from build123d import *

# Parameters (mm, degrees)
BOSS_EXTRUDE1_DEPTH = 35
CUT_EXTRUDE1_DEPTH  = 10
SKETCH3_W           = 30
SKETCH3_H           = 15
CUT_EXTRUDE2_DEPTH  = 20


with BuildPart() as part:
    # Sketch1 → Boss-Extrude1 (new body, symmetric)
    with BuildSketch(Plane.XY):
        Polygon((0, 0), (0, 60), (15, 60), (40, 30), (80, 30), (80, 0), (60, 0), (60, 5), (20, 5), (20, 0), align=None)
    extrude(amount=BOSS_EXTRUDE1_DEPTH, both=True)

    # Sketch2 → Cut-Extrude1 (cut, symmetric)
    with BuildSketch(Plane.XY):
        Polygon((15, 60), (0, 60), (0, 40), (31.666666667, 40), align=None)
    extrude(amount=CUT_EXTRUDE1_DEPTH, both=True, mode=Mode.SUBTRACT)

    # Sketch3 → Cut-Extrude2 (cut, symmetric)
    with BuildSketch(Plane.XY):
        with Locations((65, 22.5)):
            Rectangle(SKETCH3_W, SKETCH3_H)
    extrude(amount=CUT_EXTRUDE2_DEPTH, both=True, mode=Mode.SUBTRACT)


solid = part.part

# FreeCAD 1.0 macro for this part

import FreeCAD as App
import Part
import Sketcher
Q = App.Units.Quantity


def add_polygon(sketch, points):
    """Adds a closed chain of lines whose ends are joined by coincident constraints."""
    first, n = sketch.GeometryCount, len(points)
    for a, b in zip(points, points[1:] + points[:1]):
        sketch.addGeometry(Part.LineSegment(App.Vector(*a, 0), App.Vector(*b, 0)), False)
    for i in range(n):
        sketch.addConstraint(Sketcher.Constraint("Coincident", first + i, 2, first + (i + 1) % n, 1))

doc = App.newDocument("Part")
body = doc.addObject("PartDesign::Body", "Body")

# Sketch on XY plane
sketch1 = body.newObject("Sketcher::SketchObject", "Sketch")
sketch1.AttachmentSupport = (doc.getObject("XY_Plane"), [""])
sketch1.MapMode = "FlatFace"
add_polygon(sketch1, [(0, 60), (0, 0), (20, 0), (20, 5), (60, 5), (60, 0), (80, 0), (80, 30), (40, 30), (15, 60)])  # lines 0-9
sketch1.addConstraint([
    Sketcher.Constraint("Vertical", 0),
    Sketcher.Constraint("Horizontal", 1),
    Sketcher.Constraint("Vertical", 2),
    Sketcher.Constraint("Horizontal", 3),
    Sketcher.Constraint("Vertical", 4),
    Sketcher.Constraint("Horizontal", 5),
    Sketcher.Constraint("Vertical", 6),
    Sketcher.Constraint("Horizontal", 7),
    Sketcher.Constraint("Horizontal", 9),
    Sketcher.Constraint("Coincident", 0, 2, -1, 1),
    Sketcher.Constraint("PointOnObject", 4, 2, -1),
    Sketcher.Constraint("Equal", 1, 5),
    Sketcher.Constraint("Equal", 3, 7),
    Sketcher.Constraint("DistanceX", 1, 1, 1, 2, Q("20 mm")),
    Sketcher.Constraint("DistanceX", 3, 1, 3, 2, Q("40 mm")),
    Sketcher.Constraint("DistanceX", 9, 2, 9, 1, Q("15 mm")),
    Sketcher.Constraint("DistanceY", 0, 2, 0, 1, Q("60 mm")),
    Sketcher.Constraint("DistanceY", 2, 1, 2, 2, Q("5 mm")),
    Sketcher.Constraint("DistanceY", 6, 1, 6, 2, Q("30 mm")),
])
pad1 = body.newObject("PartDesign::Pad", "Pad")
pad1.Profile = sketch1
pad1.Length = 70
pad1.Midplane = True

# Sketch on XY plane
sketch2 = body.newObject("Sketcher::SketchObject", "Sketch001")
sketch2.AttachmentSupport = (doc.getObject("XY_Plane"), [""])
sketch2.MapMode = "FlatFace"
add_polygon(sketch2, [(15, 60), (0, 60), (0, 40), (32, 40)])  # lines 0-3
sketch2.addConstraint([
    Sketcher.Constraint("Horizontal", 0),
    Sketcher.Constraint("Vertical", 1),
    Sketcher.Constraint("Horizontal", 2),
    Sketcher.Constraint("PointOnObject", 0, 2, -2),
    Sketcher.Constraint("DistanceX", 0, 2, 0, 1, Q("15 mm")),
    Sketcher.Constraint("DistanceY", 1, 2, 1, 1, Q("20 mm")),
    Sketcher.Constraint("DistanceY", -1, 1, 0, 2, Q("60 mm")),
    Sketcher.Constraint("DistanceX", 2, 1, 2, 2, Q("31.666667 mm")),
])
pocket1 = body.newObject("PartDesign::Pocket", "Pocket")
pocket1.Profile = sketch2
pocket1.Length = 20
pocket1.Midplane = True

# Sketch on XY plane
sketch3 = body.newObject("Sketcher::SketchObject", "Sketch002")
sketch3.AttachmentSupport = (doc.getObject("XY_Plane"), [""])
sketch3.MapMode = "FlatFace"
add_polygon(sketch3, [(50, 30), (50, 15), (80, 15), (80, 30)])  # lines 0-3
sketch3.addConstraint([
    Sketcher.Constraint("Vertical", 0),
    Sketcher.Constraint("Horizontal", 1),
    Sketcher.Constraint("Vertical", 2),
    Sketcher.Constraint("Horizontal", 3),
    Sketcher.Constraint("DistanceX", 1, 1, 1, 2, Q("30 mm")),
    Sketcher.Constraint("DistanceY", 0, 2, 0, 1, Q("15 mm")),
    Sketcher.Constraint("DistanceX", -1, 1, 0, 2, Q("50 mm")),
    Sketcher.Constraint("DistanceY", -1, 1, 0, 2, Q("15 mm")),
])
pocket2 = body.newObject("PartDesign::Pocket", "Pocket001")
pocket2.Profile = sketch3
pocket2.Length = 40
pocket2.Midplane = True

doc.recompute()
